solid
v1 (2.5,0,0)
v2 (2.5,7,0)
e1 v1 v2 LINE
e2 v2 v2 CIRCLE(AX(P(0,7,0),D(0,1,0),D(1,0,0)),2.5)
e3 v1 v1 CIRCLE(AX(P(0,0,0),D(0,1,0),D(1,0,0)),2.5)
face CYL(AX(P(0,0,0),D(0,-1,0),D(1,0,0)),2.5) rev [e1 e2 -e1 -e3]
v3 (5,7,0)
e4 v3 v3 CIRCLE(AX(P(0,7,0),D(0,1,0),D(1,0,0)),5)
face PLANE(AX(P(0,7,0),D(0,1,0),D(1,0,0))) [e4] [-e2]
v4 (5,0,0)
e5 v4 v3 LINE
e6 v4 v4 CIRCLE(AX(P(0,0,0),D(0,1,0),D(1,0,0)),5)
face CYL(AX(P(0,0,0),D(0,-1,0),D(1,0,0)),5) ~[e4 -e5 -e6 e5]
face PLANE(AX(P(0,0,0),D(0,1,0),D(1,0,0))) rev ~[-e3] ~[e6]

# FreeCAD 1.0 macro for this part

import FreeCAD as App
import Part
import Sketcher
from FreeCAD import Vector
Q = App.Units.Quantity

doc = App.newDocument("Part")
body = doc.addObject("PartDesign::Body", "Body")

# Sketch on XZ plane
sketch1 = body.newObject("Sketcher::SketchObject", "Sketch")
sketch1.AttachmentSupport = (doc.getObject("XZ_Plane"), [""])
sketch1.MapMode = "FlatFace"
sketch1.addGeometry(Part.Circle(Vector(0, 0, 0), Vector(0, 0, 1), 5), False)
sketch1.addGeometry(Part.Circle(Vector(0, 0, 0), Vector(0, 0, 1), 2.5), False)
sketch1.addConstraint(Sketcher.Constraint("Coincident", 0, 3, -1, 1))
sketch1.addConstraint(Sketcher.Constraint("Coincident", 1, 3, -1, 1))
sketch1.addConstraint(Sketcher.Constraint("Diameter", 0, Q("10 mm")))
sketch1.addConstraint(Sketcher.Constraint("Diameter", 1, Q("5 mm")))
pad1 = body.newObject("PartDesign::Pad", "Pad")
pad1.Profile = sketch1
pad1.Length = 7
pad1.Reversed = True

doc.recompute()
